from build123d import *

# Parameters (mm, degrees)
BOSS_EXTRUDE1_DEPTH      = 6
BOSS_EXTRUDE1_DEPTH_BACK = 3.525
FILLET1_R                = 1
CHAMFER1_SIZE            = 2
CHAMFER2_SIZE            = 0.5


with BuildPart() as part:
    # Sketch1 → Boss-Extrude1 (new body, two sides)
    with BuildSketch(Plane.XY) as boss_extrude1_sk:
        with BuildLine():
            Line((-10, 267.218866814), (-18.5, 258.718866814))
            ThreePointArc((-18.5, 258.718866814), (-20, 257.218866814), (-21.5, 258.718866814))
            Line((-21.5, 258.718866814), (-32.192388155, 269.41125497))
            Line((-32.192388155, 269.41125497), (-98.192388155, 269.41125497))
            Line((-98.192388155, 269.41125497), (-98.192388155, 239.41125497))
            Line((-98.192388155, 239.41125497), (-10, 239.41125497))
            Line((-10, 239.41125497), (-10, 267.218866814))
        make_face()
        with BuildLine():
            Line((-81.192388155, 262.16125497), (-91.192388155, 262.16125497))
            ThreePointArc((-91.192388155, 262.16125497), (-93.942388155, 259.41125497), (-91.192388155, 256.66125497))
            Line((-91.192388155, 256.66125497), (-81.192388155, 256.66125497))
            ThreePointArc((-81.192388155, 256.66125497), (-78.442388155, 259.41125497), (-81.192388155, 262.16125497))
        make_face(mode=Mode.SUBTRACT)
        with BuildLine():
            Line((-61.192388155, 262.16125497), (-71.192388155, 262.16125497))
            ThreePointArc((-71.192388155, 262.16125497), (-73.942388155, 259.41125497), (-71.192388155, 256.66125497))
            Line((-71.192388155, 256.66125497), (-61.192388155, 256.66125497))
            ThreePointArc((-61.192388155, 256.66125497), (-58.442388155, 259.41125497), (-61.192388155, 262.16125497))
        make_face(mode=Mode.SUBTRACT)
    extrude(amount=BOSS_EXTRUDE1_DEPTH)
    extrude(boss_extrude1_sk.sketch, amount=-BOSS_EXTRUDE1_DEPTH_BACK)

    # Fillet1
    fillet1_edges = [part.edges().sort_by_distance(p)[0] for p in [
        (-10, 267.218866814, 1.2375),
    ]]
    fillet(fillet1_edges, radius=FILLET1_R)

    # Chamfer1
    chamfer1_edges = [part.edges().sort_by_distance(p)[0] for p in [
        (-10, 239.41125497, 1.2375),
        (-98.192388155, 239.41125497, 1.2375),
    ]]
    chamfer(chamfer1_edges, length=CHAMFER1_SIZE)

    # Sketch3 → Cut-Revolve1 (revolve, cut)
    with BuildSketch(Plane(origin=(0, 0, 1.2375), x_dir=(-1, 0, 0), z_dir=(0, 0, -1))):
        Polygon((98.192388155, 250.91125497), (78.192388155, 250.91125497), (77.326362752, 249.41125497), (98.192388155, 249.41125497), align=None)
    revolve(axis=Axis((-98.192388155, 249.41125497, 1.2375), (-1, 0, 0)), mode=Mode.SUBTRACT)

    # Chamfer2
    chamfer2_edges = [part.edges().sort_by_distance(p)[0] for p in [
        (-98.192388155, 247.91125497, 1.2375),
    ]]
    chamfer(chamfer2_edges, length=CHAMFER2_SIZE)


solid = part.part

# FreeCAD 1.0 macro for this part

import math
import FreeCAD as App
import Part
import Sketcher

V = App.Vector
Q = App.Units.Quantity


def edges_at(feature, points):
    """Names of the edges that pass closest to the given points."""
    edges = feature.Shape.Edges
    near = lambda p: min(range(len(edges)), key=lambda i: edges[i].distToShape(Part.Vertex(*p))[0])
    return sorted({f"Edge{near(p) + 1}" for p in points})

doc = App.newDocument("Part")
body = doc.addObject("PartDesign::Body", "Body")

sketch1 = body.newObject("Sketcher::SketchObject", "Sketch")
sketch1.AttachmentSupport = (doc.getObject("XY_Plane"), [""])
sketch1.MapMode = "FlatFace"
sketch1.addGeometry(Part.LineSegment(V(-10, 267.218867, 0), V(-18.5, 258.718867, 0)), False)
sketch1.addGeometry(Part.ArcOfCircle(Part.Circle(V(-20, 258.718867, 0), V(0, 0, 1), 1.5), math.radians(180), math.radians(360)), False)
sketch1.addGeometry(Part.LineSegment(V(-21.5, 258.718867, 0), V(-32.192388, 269.411255, 0)), False)
sketch1.addGeometry(Part.LineSegment(V(-32.192388, 269.411255, 0), V(-98.192388, 269.411255, 0)), False)
sketch1.addGeometry(Part.LineSegment(V(-98.192388, 269.411255, 0), V(-98.192388, 239.411255, 0)), False)
sketch1.addGeometry(Part.LineSegment(V(-98.192388, 239.411255, 0), V(-10, 239.411255, 0)), False)
sketch1.addGeometry(Part.LineSegment(V(-10, 239.411255, 0), V(-10, 267.218867, 0)), False)
sketch1.addGeometry(Part.LineSegment(V(-91.192388, 262.161255, 0), V(-81.192388, 262.161255, 0)), False)
sketch1.addGeometry(Part.ArcOfCircle(Part.Circle(V(-81.192388, 259.411255, 0), V(0, 0, 1), 2.75), math.radians(-90), math.radians(90)), False)
sketch1.addGeometry(Part.LineSegment(V(-81.192388, 256.661255, 0), V(-91.192388, 256.661255, 0)), False)
sketch1.addGeometry(Part.ArcOfCircle(Part.Circle(V(-91.192388, 259.411255, 0), V(0, 0, 1), 2.75), math.radians(90), math.radians(270)), False)
sketch1.addGeometry(Part.LineSegment(V(-71.192388, 262.161255, 0), V(-61.192388, 262.161255, 0)), False)
sketch1.addGeometry(Part.ArcOfCircle(Part.Circle(V(-61.192388, 259.411255, 0), V(0, 0, 1), 2.75), math.radians(-90), math.radians(90)), False)
sketch1.addGeometry(Part.LineSegment(V(-61.192388, 256.661255, 0), V(-71.192388, 256.661255, 0)), False)
sketch1.addGeometry(Part.ArcOfCircle(Part.Circle(V(-71.192388, 259.411255, 0), V(0, 0, 1), 2.75), math.radians(90), math.radians(270)), False)
sketch1.addConstraint(Sketcher.Constraint("Coincident", 0, 2, 1, 2))
sketch1.addConstraint(Sketcher.Constraint("Coincident", 1, 1, 2, 1))
sketch1.addConstraint(Sketcher.Constraint("Coincident", 2, 2, 3, 1))
sketch1.addConstraint(Sketcher.Constraint("Coincident", 3, 2, 4, 1))
sketch1.addConstraint(Sketcher.Constraint("Coincident", 4, 2, 5, 1))
sketch1.addConstraint(Sketcher.Constraint("Coincident", 5, 2, 6, 1))
sketch1.addConstraint(Sketcher.Constraint("Coincident", 6, 2, 0, 1))
sketch1.addConstraint(Sketcher.Constraint("Tangent", 7, 2, 8, 2))
sketch1.addConstraint(Sketcher.Constraint("Tangent", 8, 1, 9, 1))
sketch1.addConstraint(Sketcher.Constraint("Tangent", 9, 2, 10, 2))
sketch1.addConstraint(Sketcher.Constraint("Tangent", 10, 1, 7, 1))
sketch1.addConstraint(Sketcher.Constraint("Tangent", 11, 2, 12, 2))
sketch1.addConstraint(Sketcher.Constraint("Tangent", 12, 1, 13, 1))
sketch1.addConstraint(Sketcher.Constraint("Tangent", 13, 2, 14, 2))
sketch1.addConstraint(Sketcher.Constraint("Tangent", 14, 1, 11, 1))
sketch1.addConstraint(Sketcher.Constraint("Horizontal", 3))
sketch1.addConstraint(Sketcher.Constraint("Vertical", 4))
sketch1.addConstraint(Sketcher.Constraint("Horizontal", 5))
sketch1.addConstraint(Sketcher.Constraint("Vertical", 6))
sketch1.addConstraint(Sketcher.Constraint("Horizontal", 7))
sketch1.addConstraint(Sketcher.Constraint("Horizontal", 9))
sketch1.addConstraint(Sketcher.Constraint("Horizontal", 11))
sketch1.addConstraint(Sketcher.Constraint("Horizontal", 13))
sketch1.addConstraint(Sketcher.Constraint("Equal", 10, 12))
sketch1.addConstraint(Sketcher.Constraint("Perpendicular", 0, 2))
sketch1.addConstraint(Sketcher.Constraint("Horizontal", 10, 3, 12, 3))
sketch1.addConstraint(Sketcher.Constraint("Horizontal", 1, 3, 0, 2))
sketch1.addConstraint(Sketcher.Constraint("Horizontal", 0, 2, 1, 1))
sketch1.addConstraint(Sketcher.Constraint("Equal", 9, 11))
sketch1.addConstraint(Sketcher.Constraint("Radius", 1, Q("1.5 mm")))
sketch1.addConstraint(Sketcher.Constraint("DistanceX", 3, 2, 3, 1, Q("66 mm")))
sketch1.addConstraint(Sketcher.Constraint("DistanceX", 7, 1, 7, 2, Q("10 mm")))
sketch1.addConstraint(Sketcher.Constraint("DistanceY", 4, 2, 4, 1, Q("30 mm")))
sketch1.addConstraint(Sketcher.Constraint("Angle", 0, Q("-135 deg")))
sketch1.addConstraint(Sketcher.Constraint("Radius", 8, Q("2.75 mm")))
sketch1.addConstraint(Sketcher.Constraint("DistanceX", 1, 3, -1, 1, Q("20 mm")))
sketch1.addConstraint(Sketcher.Constraint("DistanceX", 5, 2, -1, 1, Q("10 mm")))
sketch1.addConstraint(Sketcher.Constraint("DistanceX", 8, 3, 12, 3, Q("20 mm")))
sketch1.addConstraint(Sketcher.Constraint("DistanceX", 12, 3, 2, 2, Q("29 mm")))
sketch1.addConstraint(Sketcher.Constraint("DistanceY", 12, 3, 2, 2, Q("10 mm")))
sketch1.addConstraint(Sketcher.Constraint("DistanceX", 5, 1, 5, 2, Q("88.192388 mm")))
sketch1.addConstraint(Sketcher.Constraint("DistanceY", -1, 1, 1, 3, Q("258.718867 mm")))
pad1 = body.newObject("PartDesign::Pad", "Pad")
pad1.Profile = sketch1
pad1.Type = "TwoLengths"
pad1.Length = 6
pad1.Length2 = 3.525
doc.recompute()

fillet = body.newObject("PartDesign::Fillet", "Fillet")
fillet.Base = (pad1, edges_at(pad1, [(-10, 267.219, 1.238)]))
fillet.Radius = 1
doc.recompute()

chamfer = body.newObject("PartDesign::Chamfer", "Chamfer")
chamfer.Base = (fillet, edges_at(fillet, [(-10, 239.411, 1.238), (-98.192, 239.411, 1.238)]))
chamfer.Size = 2

sketch2 = body.newObject("Sketcher::SketchObject", "Sketch001")
sketch2.AttachmentSupport = (doc.getObject("XY_Plane"), [""])
sketch2.MapMode = "FlatFace"
sketch2.AttachmentOffset = App.Placement(V(0, 0, 1.2375), App.Rotation())
sketch2.addGeometry(Part.LineSegment(V(-98.192388, 250.911255, 0), V(-78.192388, 250.911255, 0)), False)
sketch2.addGeometry(Part.LineSegment(V(-78.192388, 250.911255, 0), V(-77.326363, 249.411255, 0)), False)
sketch2.addGeometry(Part.LineSegment(V(-77.326363, 249.411255, 0), V(-98.192388, 249.411255, 0)), False)
sketch2.addGeometry(Part.LineSegment(V(-98.192388, 249.411255, 0), V(-98.192388, 250.911255, 0)), False)
sketch2.addGeometry(Part.LineSegment(V(-77.326363, 249.411255, 0), V(-98.192388, 249.411255, 0)), True)
sketch2.addConstraint(Sketcher.Constraint("Coincident", 0, 2, 1, 1))
sketch2.addConstraint(Sketcher.Constraint("Coincident", 1, 2, 2, 1))
sketch2.addConstraint(Sketcher.Constraint("Coincident", 2, 2, 3, 1))
sketch2.addConstraint(Sketcher.Constraint("Coincident", 3, 2, 0, 1))
sketch2.addConstraint(Sketcher.Constraint("Horizontal", 0))
sketch2.addConstraint(Sketcher.Constraint("Horizontal", 2))
sketch2.addConstraint(Sketcher.Constraint("Vertical", 3))
sketch2.addConstraint(Sketcher.Constraint("Horizontal", 4))
sketch2.addConstraint(Sketcher.Constraint("Coincident", 4, 1, 1, 2))
sketch2.addConstraint(Sketcher.Constraint("Vertical", 3, 2, 4, 2))
sketch2.addConstraint(Sketcher.Constraint("DistanceX", 0, 1, 0, 2, Q("20 mm")))
sketch2.addConstraint(Sketcher.Constraint("Angle", 1, Q("-60 deg")))
sketch2.addConstraint(Sketcher.Constraint("DistanceY", 3, 1, 3, 2, Q("1.5 mm")))
sketch2.addConstraint(Sketcher.Constraint("DistanceX", 0, 2, -1, 1, Q("78.192388 mm")))
sketch2.addConstraint(Sketcher.Constraint("DistanceY", -1, 1, 0, 2, Q("250.911255 mm")))
groove = body.newObject("PartDesign::Groove", "Groove")
groove.Profile = sketch2
groove.ReferenceAxis = (sketch2, ["Axis0"])
groove.Angle = 360
doc.recompute()

chamfer2 = body.newObject("PartDesign::Chamfer", "Chamfer001")
chamfer2.Base = (groove, edges_at(groove, [(-98.192, 247.911, 1.238)]))
chamfer2.Size = 0.5

doc.recompute()
